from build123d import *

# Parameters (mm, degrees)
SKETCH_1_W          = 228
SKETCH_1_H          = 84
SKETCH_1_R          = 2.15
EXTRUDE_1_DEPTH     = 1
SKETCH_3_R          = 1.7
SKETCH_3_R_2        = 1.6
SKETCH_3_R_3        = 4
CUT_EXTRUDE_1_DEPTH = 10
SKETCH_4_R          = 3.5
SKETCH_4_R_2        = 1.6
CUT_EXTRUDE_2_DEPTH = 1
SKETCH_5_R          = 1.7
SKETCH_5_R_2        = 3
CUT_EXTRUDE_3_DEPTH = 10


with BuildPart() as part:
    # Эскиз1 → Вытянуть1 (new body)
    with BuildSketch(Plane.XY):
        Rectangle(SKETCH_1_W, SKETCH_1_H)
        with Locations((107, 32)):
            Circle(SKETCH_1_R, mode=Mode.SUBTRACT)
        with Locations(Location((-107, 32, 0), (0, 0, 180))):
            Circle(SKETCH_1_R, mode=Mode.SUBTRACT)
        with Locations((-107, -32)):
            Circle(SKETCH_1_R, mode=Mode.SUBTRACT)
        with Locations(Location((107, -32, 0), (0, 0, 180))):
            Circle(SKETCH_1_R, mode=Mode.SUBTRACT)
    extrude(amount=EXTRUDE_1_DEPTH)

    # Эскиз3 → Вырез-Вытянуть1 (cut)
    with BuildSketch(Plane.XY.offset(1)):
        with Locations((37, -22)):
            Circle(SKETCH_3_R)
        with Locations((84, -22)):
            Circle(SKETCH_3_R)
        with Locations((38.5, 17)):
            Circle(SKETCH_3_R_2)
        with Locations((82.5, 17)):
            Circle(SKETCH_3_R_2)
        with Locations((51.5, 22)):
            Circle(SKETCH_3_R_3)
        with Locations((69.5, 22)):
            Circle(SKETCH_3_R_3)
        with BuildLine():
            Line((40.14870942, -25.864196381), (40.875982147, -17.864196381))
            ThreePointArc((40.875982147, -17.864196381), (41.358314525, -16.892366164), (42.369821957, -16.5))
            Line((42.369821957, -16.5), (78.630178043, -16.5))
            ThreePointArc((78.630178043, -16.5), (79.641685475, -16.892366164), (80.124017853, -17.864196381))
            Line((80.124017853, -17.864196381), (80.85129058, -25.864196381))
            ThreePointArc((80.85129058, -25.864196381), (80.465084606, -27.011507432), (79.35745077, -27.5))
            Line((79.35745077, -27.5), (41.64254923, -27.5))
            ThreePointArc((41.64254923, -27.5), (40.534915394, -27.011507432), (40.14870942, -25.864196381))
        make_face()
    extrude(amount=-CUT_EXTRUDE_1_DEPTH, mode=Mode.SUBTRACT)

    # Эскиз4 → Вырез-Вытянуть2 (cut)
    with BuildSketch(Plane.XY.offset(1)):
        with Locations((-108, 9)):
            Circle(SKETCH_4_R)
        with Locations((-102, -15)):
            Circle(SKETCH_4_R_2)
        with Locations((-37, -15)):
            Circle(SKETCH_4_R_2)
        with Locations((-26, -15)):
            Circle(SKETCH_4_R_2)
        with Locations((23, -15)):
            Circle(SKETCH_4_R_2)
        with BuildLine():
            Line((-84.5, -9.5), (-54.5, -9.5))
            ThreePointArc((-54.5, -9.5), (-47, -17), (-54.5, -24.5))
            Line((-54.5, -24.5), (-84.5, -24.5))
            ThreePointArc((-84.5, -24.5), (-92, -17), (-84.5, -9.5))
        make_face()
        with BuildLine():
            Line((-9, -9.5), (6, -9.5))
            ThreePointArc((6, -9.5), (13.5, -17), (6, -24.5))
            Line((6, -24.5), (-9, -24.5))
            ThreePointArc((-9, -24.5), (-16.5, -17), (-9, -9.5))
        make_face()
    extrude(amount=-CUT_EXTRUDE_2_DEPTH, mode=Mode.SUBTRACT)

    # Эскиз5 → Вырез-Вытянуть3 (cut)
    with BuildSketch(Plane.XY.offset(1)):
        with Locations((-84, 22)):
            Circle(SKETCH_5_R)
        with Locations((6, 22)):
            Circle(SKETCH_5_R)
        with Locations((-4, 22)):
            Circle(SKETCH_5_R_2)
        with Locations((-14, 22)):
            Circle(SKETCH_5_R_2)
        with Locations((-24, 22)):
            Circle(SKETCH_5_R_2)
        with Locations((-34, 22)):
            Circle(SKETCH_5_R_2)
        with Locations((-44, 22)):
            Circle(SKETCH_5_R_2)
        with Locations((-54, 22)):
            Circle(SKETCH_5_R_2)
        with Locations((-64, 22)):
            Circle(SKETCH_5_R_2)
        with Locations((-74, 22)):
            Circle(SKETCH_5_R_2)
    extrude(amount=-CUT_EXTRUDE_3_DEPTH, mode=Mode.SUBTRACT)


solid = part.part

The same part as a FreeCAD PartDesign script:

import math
import FreeCAD as App
import Part
import Sketcher

V = App.Vector


def add_polygon(sketch, points):
    """Adds a closed chain of lines whose ends are joined by coincident constraints."""
    first, n = sketch.GeometryCount, len(points)
    for a, b in zip(points, points[1:] + points[:1]):
        sketch.addGeometry(Part.LineSegment(App.Vector(*a, 0), App.Vector(*b, 0)), False)
    for i in range(n):
        sketch.addConstraint(Sketcher.Constraint("Coincident", first + i, 2, first + (i + 1) % n, 1))

doc = App.newDocument("Part")
body = doc.addObject("PartDesign::Body", "Body")

# Sketch on XY plane
sketch1 = body.newObject("Sketcher::SketchObject", "Sketch")
sketch1.AttachmentSupport = (doc.getObject("XY_Plane"), [""])
sketch1.MapMode = "FlatFace"
add_polygon(sketch1, [(-114, 42), (-114, -42), (114, -42), (114, 42)])  # lines 0-3
sketch1.addGeometry(Part.Circle(V(-107, -32, 0), V(0, 0, 1), 2.1), False)  # 4
sketch1.addGeometry(Part.Circle(V(107, -32, 0), V(0, 0, 1), 2.1), False)  # 5
sketch1.addGeometry(Part.Circle(V(-107, 32, 0), V(0, 0, 1), 2.1), False)  # 6
sketch1.addGeometry(Part.Circle(V(107, 32, 0), V(0, 0, 1), 2.1), False)  # 7
sketch1.addConstraint([
    Sketcher.Constraint("Vertical", 0),
    Sketcher.Constraint("Horizontal", 1),
    Sketcher.Constraint("Vertical", 2),
    Sketcher.Constraint("Horizontal", 3),
    Sketcher.Constraint("Equal", 4, 5),
    Sketcher.Constraint("Equal", 5, 6),
    Sketcher.Constraint("Equal", 6, 7),
    Sketcher.Constraint("Symmetric", 5, 3, 6, 3, -1, 1),
    Sketcher.Constraint("Symmetric", 4, 3, 7, 3, -1, 1),
    Sketcher.Constraint("Symmetric", 0, 2, 2, 2, -1, 1),
    Sketcher.Constraint("Symmetric", 4, 3, 5, 3, -2),
    Sketcher.Constraint("Diameter", 4, 4.3),
    Sketcher.Constraint("DistanceX", 1, 1, 1, 2, 228.0),
    Sketcher.Constraint("DistanceY", 0, 2, 0, 1, 84.0),
    Sketcher.Constraint("DistanceX", 4, 3, -1, 1, 107.0),
    Sketcher.Constraint("DistanceY", 4, 3, -1, 1, 32.0),
])
pad1 = body.newObject("PartDesign::Pad", "Pad")
pad1.Profile = sketch1
pad1.Length = 1

# Sketch on XY plane
sketch2 = body.newObject("Sketcher::SketchObject", "Sketch001")
sketch2.AttachmentSupport = (doc.getObject("XY_Plane"), [""])
sketch2.MapMode = "FlatFace"
sketch2.AttachmentOffset = App.Placement(V(0, 0, 1), App.Rotation())
sketch2.addGeometry([
    Part.Circle(V(37, -22, 0), V(0, 0, 1), 1.7),  # 0
    Part.Circle(V(84, -22, 0), V(0, 0, 1), 1.7),  # 1
    Part.Circle(V(38.5, 17, 0), V(0, 0, 1), 1.6),  # 2
    Part.Circle(V(82.5, 17, 0), V(0, 0, 1), 1.6),  # 3
    Part.Circle(V(51.5, 22, 0), V(0, 0, 1), 4),  # 4
    Part.Circle(V(69.5, 22, 0), V(0, 0, 1), 4),  # 5
    Part.LineSegment(V(40.9, -17.9, 0), V(40.1, -25.9, 0)),  # 6
    Part.ArcOfCircle(Part.Circle(V(41.6, -26, 0), V(0, 0, 1), 1.5), math.radians(175), math.radians(270)),  # 7
    Part.LineSegment(V(41.6, -27.5, 0), V(79.4, -27.5, 0)),  # 8
    Part.ArcOfCircle(Part.Circle(V(79.4, -26, 0), V(0, 0, 1), 1.5), math.radians(-90), math.radians(5)),  # 9
    Part.LineSegment(V(80.9, -25.9, 0), V(80.1, -17.9, 0)),  # 10
    Part.ArcOfCircle(Part.Circle(V(78.6, -18, 0), V(0, 0, 1), 1.5), math.radians(5), math.radians(90)),  # 11
    Part.LineSegment(V(78.6, -16.5, 0), V(42.4, -16.5, 0)),  # 12
    Part.ArcOfCircle(Part.Circle(V(42.4, -18, 0), V(0, 0, 1), 1.5), math.radians(90), math.radians(175)),  # 13
], False)
sketch2.addConstraint([
    Sketcher.Constraint("Tangent", 6, 2, 7, 1),
    Sketcher.Constraint("Tangent", 7, 2, 8, 1),
    Sketcher.Constraint("Tangent", 8, 2, 9, 1),
    Sketcher.Constraint("Tangent", 9, 2, 10, 1),
    Sketcher.Constraint("Tangent", 10, 2, 11, 1),
    Sketcher.Constraint("Tangent", 11, 2, 12, 1),
    Sketcher.Constraint("Tangent", 12, 2, 13, 1),
    Sketcher.Constraint("Tangent", 13, 2, 6, 1),
    Sketcher.Constraint("Horizontal", 8),
    Sketcher.Constraint("Horizontal", 12),
    Sketcher.Constraint("Equal", 0, 1),
    Sketcher.Constraint("Equal", 2, 3),
    Sketcher.Constraint("Equal", 4, 5),
    Sketcher.Constraint("Equal", 7, 9),
    Sketcher.Constraint("Equal", 9, 11),
    Sketcher.Constraint("Equal", 11, 13),
    Sketcher.Constraint("Horizontal", 0, 3, 1, 3),
    Sketcher.Constraint("Horizontal", 2, 3, 3, 3),
    Sketcher.Constraint("Horizontal", 4, 3, 5, 3),
    Sketcher.Constraint("Horizontal", 6, 2, 9, 2),
    Sketcher.Constraint("Diameter", 4, 8.0),
    Sketcher.Constraint("Diameter", 0, 3.4),
    Sketcher.Constraint("Diameter", 2, 3.2),
    Sketcher.Constraint("Radius", 7, 1.5),
    Sketcher.Constraint("DistanceX", -1, 1, 0, 3, 37.0),
    Sketcher.Constraint("DistanceY", 0, 3, -1, 1, 22.0),
    Sketcher.Constraint("DistanceX", -1, 1, 1, 3, 84.0),
    Sketcher.Constraint("DistanceY", -1, 1, 2, 3, 17.0),
    Sketcher.Constraint("DistanceY", -1, 1, 4, 3, 22.0),
    Sketcher.Constraint("DistanceY", 7, 3, -1, 1, 26.0),
    Sketcher.Constraint("DistanceY", 11, 3, -1, 1, 18.0),
    Sketcher.Constraint("DistanceX", 2, 3, 3, 3, 44.0),
    Sketcher.Constraint("DistanceX", 2, 3, 4, 3, 13.0),
    Sketcher.Constraint("DistanceX", 5, 3, 3, 3, 13.0),
    Sketcher.Constraint("DistanceX", -1, 1, 2, 3, 38.5),
    Sketcher.Constraint("DistanceX", 8, 1, 8, 2, 37.714902),
    Sketcher.Constraint("Distance", 6, 8.03299),
    Sketcher.Constraint("DistanceX", -1, 1, 7, 3, 41.642549),
])
pocket1 = body.newObject("PartDesign::Pocket", "Pocket")
pocket1.Profile = sketch2
pocket1.Length = 10

# Sketch on XY plane
sketch3 = body.newObject("Sketcher::SketchObject", "Sketch002")
sketch3.AttachmentSupport = (doc.getObject("XY_Plane"), [""])
sketch3.MapMode = "FlatFace"
sketch3.AttachmentOffset = App.Placement(V(0, 0, 1), App.Rotation())
sketch3.addGeometry([
    Part.Circle(V(-108, 9, 0), V(0, 0, 1), 3.5),  # 0
    Part.Circle(V(-102, -15, 0), V(0, 0, 1), 1.6),  # 1
    Part.Circle(V(-37, -15, 0), V(0, 0, 1), 1.6),  # 2
    Part.Circle(V(-26, -15, 0), V(0, 0, 1), 1.6),  # 3
    Part.Circle(V(23, -15, 0), V(0, 0, 1), 1.6),  # 4
    Part.LineSegment(V(-54.5, -9.5, 0), V(-84.5, -9.5, 0)),  # 5
    Part.ArcOfCircle(Part.Circle(V(-84.5, -17, 0), V(0, 0, 1), 7.5), math.radians(90), math.radians(270)),  # 6
    Part.LineSegment(V(-84.5, -24.5, 0), V(-54.5, -24.5, 0)),  # 7
    Part.ArcOfCircle(Part.Circle(V(-54.5, -17, 0), V(0, 0, 1), 7.5), math.radians(-90), math.radians(90)),  # 8
    Part.LineSegment(V(6, -9.5, 0), V(-9, -9.5, 0)),  # 9
    Part.ArcOfCircle(Part.Circle(V(-9, -17, 0), V(0, 0, 1), 7.5), math.radians(90), math.radians(270)),  # 10
    Part.LineSegment(V(-9, -24.5, 0), V(6, -24.5, 0)),  # 11
    Part.ArcOfCircle(Part.Circle(V(6, -17, 0), V(0, 0, 1), 7.5), math.radians(-90), math.radians(90)),  # 12
], False)
sketch3.addConstraint([
    Sketcher.Constraint("Tangent", 5, 2, 6, 1),
    Sketcher.Constraint("Tangent", 6, 2, 7, 1),
    Sketcher.Constraint("Tangent", 7, 2, 8, 1),
    Sketcher.Constraint("Tangent", 8, 2, 5, 1),
    Sketcher.Constraint("Tangent", 9, 2, 10, 1),
    Sketcher.Constraint("Tangent", 10, 2, 11, 1),
    Sketcher.Constraint("Tangent", 11, 2, 12, 1),
    Sketcher.Constraint("Tangent", 12, 2, 9, 1),
    Sketcher.Constraint("Horizontal", 5),
    Sketcher.Constraint("Horizontal", 7),
    Sketcher.Constraint("Horizontal", 9),
    Sketcher.Constraint("Horizontal", 11),
    Sketcher.Constraint("Equal", 1, 2),
    Sketcher.Constraint("Equal", 2, 3),
    Sketcher.Constraint("Equal", 3, 4),
    Sketcher.Constraint("Equal", 8, 10),
    Sketcher.Constraint("Horizontal", 1, 3, 2, 3),
    Sketcher.Constraint("Horizontal", 2, 3, 3, 3),
    Sketcher.Constraint("Horizontal", 3, 3, 4, 3),
    Sketcher.Constraint("Horizontal", 8, 3, 10, 3),
    Sketcher.Constraint("Diameter", 0, 7.0),
    Sketcher.Constraint("Diameter", 1, 3.2),
    Sketcher.Constraint("Radius", 6, 7.5),
    Sketcher.Constraint("DistanceX", 5, 2, 5, 1, 30.0),
    Sketcher.Constraint("DistanceX", 9, 2, 9, 1, 15.0),
    Sketcher.Constraint("DistanceX", 0, 3, -1, 1, 108.0),
    Sketcher.Constraint("DistanceY", -1, 1, 0, 3, 9.0),
    Sketcher.Constraint("DistanceX", 1, 3, -1, 1, 102.0),
    Sketcher.Constraint("DistanceY", 1, 3, -1, 1, 15.0),
    Sketcher.Constraint("DistanceX", 2, 3, -1, 1, 37.0),
    Sketcher.Constraint("DistanceX", 3, 3, -1, 1, 26.0),
    Sketcher.Constraint("DistanceX", -1, 1, 4, 3, 23.0),
    Sketcher.Constraint("DistanceY", 6, 3, -1, 1, 17.0),
    Sketcher.Constraint("DistanceX", 10, 3, -1, 1, 9.0),
    Sketcher.Constraint("DistanceX", 6, 3, -1, 1, 84.5),
])
pocket2 = body.newObject("PartDesign::Pocket", "Pocket001")
pocket2.Profile = sketch3
pocket2.Length = 1

# Sketch on XY plane
sketch4 = body.newObject("Sketcher::SketchObject", "Sketch003")
sketch4.AttachmentSupport = (doc.getObject("XY_Plane"), [""])
sketch4.MapMode = "FlatFace"
sketch4.AttachmentOffset = App.Placement(V(0, 0, 1), App.Rotation())
sketch4.addGeometry([
    Part.Circle(V(-84, 22, 0), V(0, 0, 1), 1.7),  # 0
    Part.Circle(V(6, 22, 0), V(0, 0, 1), 1.7),  # 1
    Part.Circle(V(-4, 22, 0), V(0, 0, 1), 3),  # 2
    Part.Circle(V(-14, 22, 0), V(0, 0, 1), 3),  # 3
    Part.Circle(V(-24, 22, 0), V(0, 0, 1), 3),  # 4
    Part.Circle(V(-34, 22, 0), V(0, 0, 1), 3),  # 5
    Part.Circle(V(-44, 22, 0), V(0, 0, 1), 3),  # 6
    Part.Circle(V(-54, 22, 0), V(0, 0, 1), 3),  # 7
    Part.Circle(V(-64, 22, 0), V(0, 0, 1), 3),  # 8
    Part.Circle(V(-74, 22, 0), V(0, 0, 1), 3),  # 9
], False)
sketch4.addConstraint([
    Sketcher.Constraint("Equal", 0, 1),
    Sketcher.Constraint("Equal", 2, 3),
    Sketcher.Constraint("Equal", 3, 4),
    Sketcher.Constraint("Equal", 4, 5),
    Sketcher.Constraint("Equal", 5, 6),
    Sketcher.Constraint("Equal", 6, 7),
    Sketcher.Constraint("Equal", 7, 8),
    Sketcher.Constraint("Equal", 8, 9),
    Sketcher.Constraint("Horizontal", 0, 3, 1, 3),
    Sketcher.Constraint("Horizontal", 1, 3, 2, 3),
    Sketcher.Constraint("Horizontal", 2, 3, 3, 3),
    Sketcher.Constraint("Horizontal", 3, 3, 4, 3),
    Sketcher.Constraint("Horizontal", 4, 3, 5, 3),
    Sketcher.Constraint("Horizontal", 5, 3, 6, 3),
    Sketcher.Constraint("Horizontal", 6, 3, 7, 3),
    Sketcher.Constraint("Horizontal", 7, 3, 8, 3),
    Sketcher.Constraint("Horizontal", 8, 3, 9, 3),
    Sketcher.Constraint("Diameter", 2, 6.0),
    Sketcher.Constraint("Diameter", 0, 3.4),
    Sketcher.Constraint("DistanceX", 0, 3, -1, 1, 84.0),
    Sketcher.Constraint("DistanceY", -1, 1, 0, 3, 22.0),
    Sketcher.Constraint("DistanceX", -1, 1, 1, 3, 6.0),
    Sketcher.Constraint("DistanceX", 2, 3, -1, 1, 4.0),
    Sketcher.Constraint("DistanceX", 3, 3, -1, 1, 14.0),
    Sketcher.Constraint("DistanceX", 4, 3, -1, 1, 24.0),
    Sketcher.Constraint("DistanceX", 5, 3, -1, 1, 34.0),
    Sketcher.Constraint("DistanceX", 6, 3, -1, 1, 44.0),
    Sketcher.Constraint("DistanceX", 7, 3, -1, 1, 54.0),
    Sketcher.Constraint("DistanceX", 8, 3, -1, 1, 64.0),
    Sketcher.Constraint("DistanceX", 9, 3, -1, 1, 74.0),
])
pocket3 = body.newObject("PartDesign::Pocket", "Pocket002")
pocket3.Profile = sketch4
pocket3.Length = 10

doc.recompute()
